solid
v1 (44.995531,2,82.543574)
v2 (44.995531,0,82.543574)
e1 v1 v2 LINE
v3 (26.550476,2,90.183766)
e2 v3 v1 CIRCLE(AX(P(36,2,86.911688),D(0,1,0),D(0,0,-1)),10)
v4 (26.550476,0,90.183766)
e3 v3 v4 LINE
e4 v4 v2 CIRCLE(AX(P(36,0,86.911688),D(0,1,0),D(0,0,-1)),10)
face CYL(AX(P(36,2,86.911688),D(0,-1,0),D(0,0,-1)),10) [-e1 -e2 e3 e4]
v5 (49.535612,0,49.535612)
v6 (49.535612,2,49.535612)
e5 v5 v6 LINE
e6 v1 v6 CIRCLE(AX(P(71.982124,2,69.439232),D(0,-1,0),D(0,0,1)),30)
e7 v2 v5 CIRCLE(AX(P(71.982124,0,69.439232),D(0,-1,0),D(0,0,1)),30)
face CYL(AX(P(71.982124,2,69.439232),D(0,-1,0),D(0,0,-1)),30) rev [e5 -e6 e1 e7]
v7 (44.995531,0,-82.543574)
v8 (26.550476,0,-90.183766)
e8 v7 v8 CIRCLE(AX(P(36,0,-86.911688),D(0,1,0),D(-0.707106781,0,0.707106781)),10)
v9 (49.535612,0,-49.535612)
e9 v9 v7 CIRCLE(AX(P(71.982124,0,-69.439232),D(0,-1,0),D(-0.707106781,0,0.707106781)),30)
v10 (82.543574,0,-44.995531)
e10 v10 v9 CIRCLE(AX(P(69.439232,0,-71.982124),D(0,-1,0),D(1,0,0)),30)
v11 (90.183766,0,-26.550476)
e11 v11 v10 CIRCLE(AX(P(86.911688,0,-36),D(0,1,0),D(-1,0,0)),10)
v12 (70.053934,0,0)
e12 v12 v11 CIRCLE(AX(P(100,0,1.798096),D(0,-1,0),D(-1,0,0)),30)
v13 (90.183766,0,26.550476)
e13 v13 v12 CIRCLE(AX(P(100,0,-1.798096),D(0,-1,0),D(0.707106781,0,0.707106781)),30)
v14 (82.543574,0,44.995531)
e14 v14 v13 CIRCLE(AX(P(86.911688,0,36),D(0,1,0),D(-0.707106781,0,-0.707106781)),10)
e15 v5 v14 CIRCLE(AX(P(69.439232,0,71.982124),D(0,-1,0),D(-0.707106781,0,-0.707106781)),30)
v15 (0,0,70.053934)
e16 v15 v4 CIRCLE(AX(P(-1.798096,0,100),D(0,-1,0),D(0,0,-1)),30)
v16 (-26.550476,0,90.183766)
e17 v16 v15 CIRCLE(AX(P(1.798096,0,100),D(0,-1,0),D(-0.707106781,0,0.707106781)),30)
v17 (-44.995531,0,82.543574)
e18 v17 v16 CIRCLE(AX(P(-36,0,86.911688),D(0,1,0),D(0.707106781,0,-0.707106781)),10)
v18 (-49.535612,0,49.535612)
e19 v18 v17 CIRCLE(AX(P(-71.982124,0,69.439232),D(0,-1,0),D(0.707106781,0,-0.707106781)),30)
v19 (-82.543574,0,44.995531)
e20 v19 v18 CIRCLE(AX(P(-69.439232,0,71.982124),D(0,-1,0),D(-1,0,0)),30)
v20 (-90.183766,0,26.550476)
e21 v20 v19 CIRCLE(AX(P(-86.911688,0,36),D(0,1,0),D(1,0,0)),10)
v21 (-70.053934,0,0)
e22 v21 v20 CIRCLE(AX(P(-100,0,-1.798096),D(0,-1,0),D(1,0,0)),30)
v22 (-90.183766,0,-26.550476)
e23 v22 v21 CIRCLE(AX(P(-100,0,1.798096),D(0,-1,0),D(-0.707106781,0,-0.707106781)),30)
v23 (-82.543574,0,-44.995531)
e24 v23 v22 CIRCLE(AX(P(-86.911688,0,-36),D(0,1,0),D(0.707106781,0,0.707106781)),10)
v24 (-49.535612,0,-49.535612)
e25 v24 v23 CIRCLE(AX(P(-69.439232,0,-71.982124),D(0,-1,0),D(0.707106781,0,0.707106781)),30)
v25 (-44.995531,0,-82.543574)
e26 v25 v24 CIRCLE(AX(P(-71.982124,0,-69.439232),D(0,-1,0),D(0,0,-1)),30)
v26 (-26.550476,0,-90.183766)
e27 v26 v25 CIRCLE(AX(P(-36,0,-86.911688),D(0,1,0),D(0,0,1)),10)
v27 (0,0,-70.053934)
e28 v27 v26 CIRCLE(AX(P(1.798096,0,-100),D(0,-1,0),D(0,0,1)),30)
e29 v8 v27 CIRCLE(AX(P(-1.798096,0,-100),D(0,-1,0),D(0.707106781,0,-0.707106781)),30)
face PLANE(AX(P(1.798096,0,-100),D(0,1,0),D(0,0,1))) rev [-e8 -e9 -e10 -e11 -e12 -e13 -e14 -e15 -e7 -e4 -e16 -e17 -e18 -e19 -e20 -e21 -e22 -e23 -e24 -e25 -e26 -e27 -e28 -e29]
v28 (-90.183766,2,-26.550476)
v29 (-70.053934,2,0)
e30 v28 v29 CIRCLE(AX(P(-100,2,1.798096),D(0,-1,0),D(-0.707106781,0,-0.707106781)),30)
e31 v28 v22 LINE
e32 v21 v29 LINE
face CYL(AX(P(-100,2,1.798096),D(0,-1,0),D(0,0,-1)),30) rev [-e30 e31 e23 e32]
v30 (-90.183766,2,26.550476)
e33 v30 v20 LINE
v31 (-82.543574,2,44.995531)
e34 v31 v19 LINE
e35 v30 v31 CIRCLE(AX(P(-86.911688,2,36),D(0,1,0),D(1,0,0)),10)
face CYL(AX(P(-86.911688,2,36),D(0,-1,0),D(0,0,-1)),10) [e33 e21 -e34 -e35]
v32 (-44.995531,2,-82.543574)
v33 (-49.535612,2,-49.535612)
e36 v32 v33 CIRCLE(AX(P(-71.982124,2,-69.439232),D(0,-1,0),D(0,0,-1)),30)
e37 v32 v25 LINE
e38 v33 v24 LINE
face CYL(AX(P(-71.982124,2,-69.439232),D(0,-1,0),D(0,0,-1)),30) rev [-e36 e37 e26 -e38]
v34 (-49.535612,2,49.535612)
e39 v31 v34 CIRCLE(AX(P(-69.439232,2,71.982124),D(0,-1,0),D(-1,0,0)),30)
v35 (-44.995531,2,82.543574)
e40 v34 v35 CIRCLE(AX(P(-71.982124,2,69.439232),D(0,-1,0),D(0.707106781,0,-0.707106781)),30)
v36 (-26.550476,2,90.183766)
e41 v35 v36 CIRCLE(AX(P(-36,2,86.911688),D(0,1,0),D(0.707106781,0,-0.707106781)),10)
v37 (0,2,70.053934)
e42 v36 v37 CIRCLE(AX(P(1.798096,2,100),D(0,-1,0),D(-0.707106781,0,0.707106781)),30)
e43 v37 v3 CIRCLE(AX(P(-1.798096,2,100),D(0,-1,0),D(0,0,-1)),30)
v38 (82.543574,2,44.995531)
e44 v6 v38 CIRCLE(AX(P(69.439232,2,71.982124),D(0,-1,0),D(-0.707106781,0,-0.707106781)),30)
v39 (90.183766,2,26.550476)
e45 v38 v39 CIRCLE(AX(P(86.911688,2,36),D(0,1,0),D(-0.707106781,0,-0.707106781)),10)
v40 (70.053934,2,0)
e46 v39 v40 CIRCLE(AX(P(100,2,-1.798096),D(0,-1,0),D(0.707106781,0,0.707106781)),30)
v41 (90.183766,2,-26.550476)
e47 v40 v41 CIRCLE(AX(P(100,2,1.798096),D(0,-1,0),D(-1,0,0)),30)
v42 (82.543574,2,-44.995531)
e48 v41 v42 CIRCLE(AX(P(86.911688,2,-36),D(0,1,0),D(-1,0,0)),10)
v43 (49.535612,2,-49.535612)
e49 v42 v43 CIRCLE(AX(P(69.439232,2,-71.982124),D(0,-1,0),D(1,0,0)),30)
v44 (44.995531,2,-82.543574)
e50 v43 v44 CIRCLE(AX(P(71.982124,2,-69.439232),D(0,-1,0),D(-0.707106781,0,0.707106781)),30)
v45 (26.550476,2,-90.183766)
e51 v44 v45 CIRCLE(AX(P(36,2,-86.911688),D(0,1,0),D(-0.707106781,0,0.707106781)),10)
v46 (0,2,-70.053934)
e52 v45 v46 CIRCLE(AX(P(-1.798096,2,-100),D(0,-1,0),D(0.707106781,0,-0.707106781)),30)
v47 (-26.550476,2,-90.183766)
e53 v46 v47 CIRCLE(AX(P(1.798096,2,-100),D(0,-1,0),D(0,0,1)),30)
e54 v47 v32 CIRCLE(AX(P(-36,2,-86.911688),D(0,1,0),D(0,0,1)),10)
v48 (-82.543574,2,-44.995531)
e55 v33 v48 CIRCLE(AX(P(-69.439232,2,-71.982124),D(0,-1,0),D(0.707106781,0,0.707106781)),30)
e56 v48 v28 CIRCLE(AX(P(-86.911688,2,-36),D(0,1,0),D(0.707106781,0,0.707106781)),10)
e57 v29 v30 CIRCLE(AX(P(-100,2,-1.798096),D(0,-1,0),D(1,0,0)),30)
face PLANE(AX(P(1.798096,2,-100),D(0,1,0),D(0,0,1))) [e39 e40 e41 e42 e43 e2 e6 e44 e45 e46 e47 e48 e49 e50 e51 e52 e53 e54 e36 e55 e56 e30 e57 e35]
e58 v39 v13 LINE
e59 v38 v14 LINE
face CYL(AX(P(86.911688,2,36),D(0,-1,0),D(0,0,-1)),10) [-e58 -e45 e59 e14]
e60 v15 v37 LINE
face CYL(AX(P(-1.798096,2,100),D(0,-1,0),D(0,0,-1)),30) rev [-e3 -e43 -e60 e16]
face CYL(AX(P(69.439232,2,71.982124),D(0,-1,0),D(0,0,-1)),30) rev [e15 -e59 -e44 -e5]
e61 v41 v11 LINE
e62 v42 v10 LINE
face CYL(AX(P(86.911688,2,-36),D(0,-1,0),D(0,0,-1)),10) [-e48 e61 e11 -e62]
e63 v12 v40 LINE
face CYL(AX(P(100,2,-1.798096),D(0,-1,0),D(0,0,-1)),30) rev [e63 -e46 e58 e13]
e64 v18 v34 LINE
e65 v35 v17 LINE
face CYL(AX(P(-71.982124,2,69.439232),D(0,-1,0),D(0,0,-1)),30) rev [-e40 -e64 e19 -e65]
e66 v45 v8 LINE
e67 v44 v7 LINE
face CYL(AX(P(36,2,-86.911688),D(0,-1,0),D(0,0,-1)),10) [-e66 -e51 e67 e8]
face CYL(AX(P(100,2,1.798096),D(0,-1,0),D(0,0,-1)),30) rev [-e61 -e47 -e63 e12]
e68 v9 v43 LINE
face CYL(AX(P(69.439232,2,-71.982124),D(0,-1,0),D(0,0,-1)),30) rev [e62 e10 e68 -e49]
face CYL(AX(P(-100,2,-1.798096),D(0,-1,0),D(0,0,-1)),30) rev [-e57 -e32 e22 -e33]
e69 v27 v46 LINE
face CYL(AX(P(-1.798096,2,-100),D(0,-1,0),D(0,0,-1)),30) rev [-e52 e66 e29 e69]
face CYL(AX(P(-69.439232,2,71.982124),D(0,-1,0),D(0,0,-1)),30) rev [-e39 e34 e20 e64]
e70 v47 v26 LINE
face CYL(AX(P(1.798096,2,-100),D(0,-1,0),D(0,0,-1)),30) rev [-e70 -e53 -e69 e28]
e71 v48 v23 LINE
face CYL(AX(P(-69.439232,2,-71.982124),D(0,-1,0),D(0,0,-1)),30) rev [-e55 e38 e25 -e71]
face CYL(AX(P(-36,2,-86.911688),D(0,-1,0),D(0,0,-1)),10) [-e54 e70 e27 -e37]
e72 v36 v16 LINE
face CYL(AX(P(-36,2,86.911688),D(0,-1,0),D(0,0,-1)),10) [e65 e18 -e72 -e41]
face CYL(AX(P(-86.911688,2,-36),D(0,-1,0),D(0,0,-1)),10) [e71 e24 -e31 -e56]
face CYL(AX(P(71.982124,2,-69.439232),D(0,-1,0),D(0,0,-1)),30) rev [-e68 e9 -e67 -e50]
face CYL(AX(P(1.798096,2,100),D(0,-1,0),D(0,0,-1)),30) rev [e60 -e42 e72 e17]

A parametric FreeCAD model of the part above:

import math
import FreeCAD as App
import Part
import Sketcher

V = App.Vector
Q = App.Units.Quantity

doc = App.newDocument("Part")
body = doc.addObject("PartDesign::Body", "Body")

sketch1 = body.newObject("Sketcher::SketchObject", "Sketch")
sketch1.AttachmentSupport = (doc.getObject("XZ_Plane"), [""])
sketch1.MapMode = "FlatFace"
sketch1.addGeometry([
    Part.LineSegment(V(29, 70, 0), V(70, 29, 0)),
    Part.LineSegment(V(70, 29, 0), V(70, -29, 0)),
    Part.LineSegment(V(70, -29, 0), V(29, -70, 0)),
    Part.LineSegment(V(29, -70, 0), V(2, -70, 0)),
    Part.ArcOfCircle(Part.Circle(V(2, -100, 0), V(0, 0, 1), 30), math.radians(90), math.radians(161)),
    Part.ArcOfCircle(Part.Circle(V(-36, -87, 0), V(0, 0, 1), 10), math.radians(154), math.radians(341)),
    Part.ArcOfCircle(Part.Circle(V(-72, -69, 0), V(0, 0, 1), 30), math.radians(-26), math.radians(45)),
    Part.LineSegment(V(-51, -48, 0), V(-70, -29, 0)),
    Part.LineSegment(V(-70, -29, 0), V(-70, 29, 0)),
    Part.LineSegment(V(-70, 29, 0), V(-29, 70, 0)),
    Part.LineSegment(V(-29, 70, 0), V(29, 70, 0)),
], False)
sketch1.addConstraint([
    Sketcher.Constraint("Coincident", 0, 2, 1, 1),
    Sketcher.Constraint("Coincident", 1, 2, 2, 1),
    Sketcher.Constraint("Coincident", 2, 2, 3, 1),
    Sketcher.Constraint("Tangent", 3, 2, 4, 1),
    Sketcher.Constraint("Tangent", 4, 2, 5, 2),
    Sketcher.Constraint("Tangent", 5, 1, 6, 1),
    Sketcher.Constraint("Tangent", 6, 2, 7, 1),
    Sketcher.Constraint("Coincident", 7, 2, 8, 1),
    Sketcher.Constraint("Coincident", 8, 2, 9, 1),
    Sketcher.Constraint("Coincident", 9, 2, 10, 1),
    Sketcher.Constraint("Coincident", 10, 2, 0, 1),
    Sketcher.Constraint("Vertical", 1),
    Sketcher.Constraint("Horizontal", 3),
    Sketcher.Constraint("Vertical", 8),
    Sketcher.Constraint("Horizontal", 10),
    Sketcher.Constraint("Equal", 4, 6),
    Sketcher.Constraint("Symmetric", 0, 2, 7, 2, -1, 1),
    Sketcher.Constraint("Symmetric", 2, 2, 9, 2, -1, 1),
    Sketcher.Constraint("Perpendicular", 0, 2),
    Sketcher.Constraint("Perpendicular", 2, 7),
    Sketcher.Constraint("Perpendicular", 7, 9),
    Sketcher.Constraint("Horizontal", 1, 2, 7, 2),
    Sketcher.Constraint("Vertical", 2, 2, 10, 2),
    Sketcher.Constraint("Equal", 10, 1),
    Sketcher.Constraint("Radius", 4, Q("30 mm")),
    Sketcher.Constraint("Radius", 5, Q("10 mm")),
    Sketcher.Constraint("DistanceY", 4, 3, -1, 1, Q("100 mm")),
    Sketcher.Constraint("DistanceX", 5, 3, -1, 1, Q("36 mm")),
    Sketcher.Constraint("DistanceX", 10, 1, 10, 2, Q("57.989899 mm")),
    Sketcher.Constraint("DistanceX", 3, 2, 3, 1, Q("27.196853 mm")),
])
pad1 = body.newObject("PartDesign::Pad", "Pad")
pad1.Profile = sketch1
pad1.Length = 2
pad1.Reversed = True
doc.recompute()

polarpattern = body.newObject("PartDesign::PolarPattern", "PolarPattern")
polarpattern.Originals = [pad1]
polarpattern.Axis = (doc.getObject("Y_Axis"), [""])
polarpattern.Angle = 360
polarpattern.Occurrences = 8
body.Tip = polarpattern

doc.recompute()
